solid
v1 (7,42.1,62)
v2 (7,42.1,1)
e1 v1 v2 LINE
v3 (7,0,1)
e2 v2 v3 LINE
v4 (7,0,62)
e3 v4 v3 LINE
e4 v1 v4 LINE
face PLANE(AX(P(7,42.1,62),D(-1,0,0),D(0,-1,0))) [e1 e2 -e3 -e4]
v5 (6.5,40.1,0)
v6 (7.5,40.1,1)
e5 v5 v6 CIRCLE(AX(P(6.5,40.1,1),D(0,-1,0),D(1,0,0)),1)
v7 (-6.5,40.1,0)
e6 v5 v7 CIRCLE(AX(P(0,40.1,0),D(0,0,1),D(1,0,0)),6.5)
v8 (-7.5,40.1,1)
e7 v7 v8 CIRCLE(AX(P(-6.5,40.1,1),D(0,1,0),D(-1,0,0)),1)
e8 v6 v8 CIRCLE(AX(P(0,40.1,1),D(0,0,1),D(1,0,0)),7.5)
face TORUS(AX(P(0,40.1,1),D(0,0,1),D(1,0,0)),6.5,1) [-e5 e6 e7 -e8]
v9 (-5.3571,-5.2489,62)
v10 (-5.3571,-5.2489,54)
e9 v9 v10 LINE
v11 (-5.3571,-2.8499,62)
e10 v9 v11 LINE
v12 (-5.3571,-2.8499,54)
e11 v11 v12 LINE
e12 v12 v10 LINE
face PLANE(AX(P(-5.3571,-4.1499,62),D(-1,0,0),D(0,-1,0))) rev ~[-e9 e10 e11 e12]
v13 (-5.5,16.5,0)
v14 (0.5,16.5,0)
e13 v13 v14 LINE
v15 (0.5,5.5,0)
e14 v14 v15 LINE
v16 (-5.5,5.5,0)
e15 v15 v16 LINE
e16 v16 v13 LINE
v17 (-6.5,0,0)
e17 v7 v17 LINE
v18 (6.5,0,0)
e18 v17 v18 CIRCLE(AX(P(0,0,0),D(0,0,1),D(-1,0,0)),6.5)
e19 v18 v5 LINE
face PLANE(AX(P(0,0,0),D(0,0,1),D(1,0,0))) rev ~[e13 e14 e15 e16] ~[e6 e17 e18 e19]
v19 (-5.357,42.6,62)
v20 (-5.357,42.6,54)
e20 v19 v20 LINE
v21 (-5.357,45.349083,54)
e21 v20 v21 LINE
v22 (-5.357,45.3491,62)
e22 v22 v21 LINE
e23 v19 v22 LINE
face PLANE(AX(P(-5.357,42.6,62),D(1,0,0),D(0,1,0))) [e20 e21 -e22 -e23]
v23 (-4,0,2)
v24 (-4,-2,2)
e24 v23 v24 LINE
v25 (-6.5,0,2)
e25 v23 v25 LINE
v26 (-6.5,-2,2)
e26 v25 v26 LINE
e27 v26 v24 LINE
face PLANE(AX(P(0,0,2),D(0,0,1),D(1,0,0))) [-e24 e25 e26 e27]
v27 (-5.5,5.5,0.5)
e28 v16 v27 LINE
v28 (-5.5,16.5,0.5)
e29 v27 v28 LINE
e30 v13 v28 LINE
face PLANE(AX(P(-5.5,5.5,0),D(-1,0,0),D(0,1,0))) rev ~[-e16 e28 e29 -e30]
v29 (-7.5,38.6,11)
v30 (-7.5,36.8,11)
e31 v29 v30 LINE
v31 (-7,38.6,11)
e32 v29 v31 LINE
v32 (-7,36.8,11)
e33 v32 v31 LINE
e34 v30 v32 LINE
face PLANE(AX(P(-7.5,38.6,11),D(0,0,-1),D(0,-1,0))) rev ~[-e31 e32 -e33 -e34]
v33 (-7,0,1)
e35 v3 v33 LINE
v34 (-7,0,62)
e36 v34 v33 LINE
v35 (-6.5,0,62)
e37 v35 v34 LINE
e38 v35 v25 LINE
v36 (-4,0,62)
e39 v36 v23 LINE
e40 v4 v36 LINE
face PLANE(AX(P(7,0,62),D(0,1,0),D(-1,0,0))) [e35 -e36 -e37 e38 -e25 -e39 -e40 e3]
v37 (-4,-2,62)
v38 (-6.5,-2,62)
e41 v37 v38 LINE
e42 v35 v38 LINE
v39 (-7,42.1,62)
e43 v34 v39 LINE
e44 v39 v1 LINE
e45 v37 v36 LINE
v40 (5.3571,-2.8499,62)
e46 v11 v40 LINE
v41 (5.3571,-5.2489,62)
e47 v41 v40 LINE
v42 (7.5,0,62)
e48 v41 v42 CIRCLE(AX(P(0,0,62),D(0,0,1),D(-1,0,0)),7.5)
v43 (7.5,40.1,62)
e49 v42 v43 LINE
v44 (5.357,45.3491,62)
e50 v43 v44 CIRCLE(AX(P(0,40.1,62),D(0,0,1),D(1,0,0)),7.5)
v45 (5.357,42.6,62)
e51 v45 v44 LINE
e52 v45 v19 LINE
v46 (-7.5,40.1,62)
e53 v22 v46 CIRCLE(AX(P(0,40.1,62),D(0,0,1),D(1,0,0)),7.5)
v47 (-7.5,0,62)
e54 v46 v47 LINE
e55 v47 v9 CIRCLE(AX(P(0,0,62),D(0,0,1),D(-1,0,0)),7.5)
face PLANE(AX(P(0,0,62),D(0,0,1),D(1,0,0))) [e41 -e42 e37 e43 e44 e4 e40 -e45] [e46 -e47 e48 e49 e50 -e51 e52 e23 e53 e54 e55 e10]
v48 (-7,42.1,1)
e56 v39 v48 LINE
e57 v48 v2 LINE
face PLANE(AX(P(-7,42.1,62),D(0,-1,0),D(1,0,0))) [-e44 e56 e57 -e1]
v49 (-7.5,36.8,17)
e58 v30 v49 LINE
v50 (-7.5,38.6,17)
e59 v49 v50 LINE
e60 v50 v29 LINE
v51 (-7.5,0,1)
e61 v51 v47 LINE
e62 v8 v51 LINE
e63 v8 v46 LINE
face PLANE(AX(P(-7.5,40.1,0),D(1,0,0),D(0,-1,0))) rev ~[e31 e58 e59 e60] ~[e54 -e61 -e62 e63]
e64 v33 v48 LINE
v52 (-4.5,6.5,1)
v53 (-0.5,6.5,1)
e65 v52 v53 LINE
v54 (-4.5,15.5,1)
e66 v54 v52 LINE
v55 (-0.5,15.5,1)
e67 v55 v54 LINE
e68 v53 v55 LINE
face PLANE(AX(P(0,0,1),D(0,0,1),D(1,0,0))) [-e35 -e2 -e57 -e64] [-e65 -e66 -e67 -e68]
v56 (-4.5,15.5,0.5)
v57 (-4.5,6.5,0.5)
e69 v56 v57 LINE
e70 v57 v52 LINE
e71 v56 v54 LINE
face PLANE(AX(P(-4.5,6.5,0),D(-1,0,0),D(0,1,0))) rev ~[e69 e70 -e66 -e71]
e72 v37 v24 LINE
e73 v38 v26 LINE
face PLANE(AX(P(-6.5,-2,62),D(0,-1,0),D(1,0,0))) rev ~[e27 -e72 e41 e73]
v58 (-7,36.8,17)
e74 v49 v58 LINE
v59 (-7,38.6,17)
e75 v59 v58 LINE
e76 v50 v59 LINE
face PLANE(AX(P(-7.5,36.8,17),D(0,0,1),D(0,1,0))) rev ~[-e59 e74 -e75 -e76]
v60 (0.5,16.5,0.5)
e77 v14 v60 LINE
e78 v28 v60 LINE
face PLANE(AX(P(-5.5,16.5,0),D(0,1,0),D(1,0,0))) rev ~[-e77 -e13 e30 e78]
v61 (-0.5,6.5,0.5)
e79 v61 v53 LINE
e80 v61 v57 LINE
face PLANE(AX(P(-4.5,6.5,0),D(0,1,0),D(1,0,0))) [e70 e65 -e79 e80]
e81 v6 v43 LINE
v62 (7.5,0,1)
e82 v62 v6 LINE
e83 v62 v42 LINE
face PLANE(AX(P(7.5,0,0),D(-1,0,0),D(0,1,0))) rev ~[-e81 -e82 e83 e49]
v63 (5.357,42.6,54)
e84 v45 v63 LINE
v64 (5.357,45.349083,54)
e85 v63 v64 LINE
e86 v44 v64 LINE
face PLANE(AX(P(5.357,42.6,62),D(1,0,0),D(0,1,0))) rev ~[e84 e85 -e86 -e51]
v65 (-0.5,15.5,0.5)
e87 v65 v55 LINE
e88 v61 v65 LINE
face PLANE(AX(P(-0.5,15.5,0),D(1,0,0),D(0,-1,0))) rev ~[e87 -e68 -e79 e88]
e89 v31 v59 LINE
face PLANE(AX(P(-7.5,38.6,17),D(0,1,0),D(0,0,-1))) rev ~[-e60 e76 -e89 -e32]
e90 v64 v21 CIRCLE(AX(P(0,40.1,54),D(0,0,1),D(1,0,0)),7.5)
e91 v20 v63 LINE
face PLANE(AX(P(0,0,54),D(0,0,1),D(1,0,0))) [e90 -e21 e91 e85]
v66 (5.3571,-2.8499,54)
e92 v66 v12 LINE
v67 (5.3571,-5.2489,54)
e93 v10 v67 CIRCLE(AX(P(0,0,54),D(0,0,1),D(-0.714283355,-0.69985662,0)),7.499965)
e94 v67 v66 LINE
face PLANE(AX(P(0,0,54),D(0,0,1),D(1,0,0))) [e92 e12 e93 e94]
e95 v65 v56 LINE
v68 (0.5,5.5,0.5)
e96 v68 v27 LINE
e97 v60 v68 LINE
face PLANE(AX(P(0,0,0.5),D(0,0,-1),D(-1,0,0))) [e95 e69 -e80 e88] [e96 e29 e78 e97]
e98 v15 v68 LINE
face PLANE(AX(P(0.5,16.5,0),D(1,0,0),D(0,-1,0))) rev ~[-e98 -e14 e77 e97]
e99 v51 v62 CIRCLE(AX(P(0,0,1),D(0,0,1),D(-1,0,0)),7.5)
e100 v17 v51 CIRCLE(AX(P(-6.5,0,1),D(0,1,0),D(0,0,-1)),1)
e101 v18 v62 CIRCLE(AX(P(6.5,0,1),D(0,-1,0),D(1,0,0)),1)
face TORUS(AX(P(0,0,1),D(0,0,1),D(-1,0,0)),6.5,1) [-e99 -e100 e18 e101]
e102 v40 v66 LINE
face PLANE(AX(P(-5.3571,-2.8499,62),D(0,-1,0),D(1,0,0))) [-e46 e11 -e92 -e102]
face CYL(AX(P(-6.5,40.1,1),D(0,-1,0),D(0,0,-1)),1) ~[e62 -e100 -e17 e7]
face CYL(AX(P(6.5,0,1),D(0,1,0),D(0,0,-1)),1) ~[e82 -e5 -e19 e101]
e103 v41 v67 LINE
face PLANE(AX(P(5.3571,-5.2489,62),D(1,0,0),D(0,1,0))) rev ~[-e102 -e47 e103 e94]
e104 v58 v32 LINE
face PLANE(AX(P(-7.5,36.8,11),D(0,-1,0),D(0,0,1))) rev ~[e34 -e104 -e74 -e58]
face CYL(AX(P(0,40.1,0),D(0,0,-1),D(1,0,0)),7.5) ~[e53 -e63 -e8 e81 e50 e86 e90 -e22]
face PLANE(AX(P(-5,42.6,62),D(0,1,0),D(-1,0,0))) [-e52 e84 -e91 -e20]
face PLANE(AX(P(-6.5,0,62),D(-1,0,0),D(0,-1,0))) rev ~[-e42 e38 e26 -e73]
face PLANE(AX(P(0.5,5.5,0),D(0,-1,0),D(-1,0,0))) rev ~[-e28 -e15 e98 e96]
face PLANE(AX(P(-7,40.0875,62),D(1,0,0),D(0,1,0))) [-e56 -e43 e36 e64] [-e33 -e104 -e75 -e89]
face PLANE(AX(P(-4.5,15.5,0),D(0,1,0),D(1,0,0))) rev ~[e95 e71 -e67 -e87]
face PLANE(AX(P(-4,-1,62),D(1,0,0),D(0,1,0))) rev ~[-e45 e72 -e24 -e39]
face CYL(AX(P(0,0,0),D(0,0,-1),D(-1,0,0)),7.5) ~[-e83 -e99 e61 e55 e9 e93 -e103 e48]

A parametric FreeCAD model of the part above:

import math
import FreeCAD as App
import Part
import Sketcher


def edges_at(feature, points):
    """Names of the edges that pass closest to the given points."""
    edges = feature.Shape.Edges
    near = lambda p: min(range(len(edges)), key=lambda i: edges[i].distToShape(Part.Vertex(*p))[0])
    return sorted({f"Edge{near(p) + 1}" for p in points})


def add_polygon(sketch, points):
    """Adds a closed chain of lines whose ends are joined by coincident constraints."""
    first, n = sketch.GeometryCount, len(points)
    for a, b in zip(points, points[1:] + points[:1]):
        sketch.addGeometry(Part.LineSegment(App.Vector(*a, 0), App.Vector(*b, 0)), False)
    for i in range(n):
        sketch.addConstraint(Sketcher.Constraint("Coincident", first + i, 2, first + (i + 1) % n, 1))

doc = App.newDocument("Part")
params = doc.addObject("Spreadsheet::Sheet", "Params")
for row, (alias, value) in enumerate([
    ("sketch1_radius", "7.5 mm"),
    ("sketch1_height", "40.1 mm"),
    ("pad1_length", "62 mm"),
    ("sketch2_width", "14 mm"),
    ("sketch2_height", "42.1 mm"),
    ("pocket1_length", "61 mm"),
    ("sketch3_radius", "7.5 mm"),
    ("pocket2_length", "8 mm"),
    ("fillet_radius", "1 mm"),
    ("sketch4_height", "2 mm"),
    ("sketch4_width", "2.5 mm"),
    ("pocket3_length", "60 mm"),
    ("sketch5_height", "9 mm"),
    ("sketch5_width", "4 mm"),
    ("sketch6_height", "6 mm"),
    ("sketch6_width", "1.8 mm"),
    ("pocket5_length", "3 mm"),
    ("sketch7_width", "6 mm"),
    ("sketch7_height", "11 mm"),
    ("pocket6_length", "0.5 mm"),
], start=1):
    params.set(f"A{row}", alias)
    params.set(f"B{row}", "=" + value)
    params.setAlias(f"B{row}", alias)

body = doc.addObject("PartDesign::Body", "Body")

# Sketch on XY plane
sketch1 = body.newObject("Sketcher::SketchObject", "Sketch")
sketch1.AttachmentSupport = (doc.getObject("XY_Plane"), [""])
sketch1.MapMode = "FlatFace"
sketch1.addGeometry([
    Part.ArcOfCircle(Part.Circle(App.Vector(0, 0, 0), App.Vector(0, 0, 1), 7.5), math.radians(180), math.radians(360)),
    Part.LineSegment(App.Vector(7.5, 0, 0), App.Vector(7.5, 40.1, 0)),
    Part.ArcOfCircle(Part.Circle(App.Vector(0, 40.1, 0), App.Vector(0, 0, 1), 7.5), math.radians(0), math.radians(180)),
    Part.LineSegment(App.Vector(-7.5, 40.1, 0), App.Vector(-7.5, 0, 0)),
], False)
sketch1.addConstraint([
    Sketcher.Constraint("Tangent", 0, 2, 1, 1),
    Sketcher.Constraint("Tangent", 1, 2, 2, 1),
    Sketcher.Constraint("Tangent", 2, 2, 3, 1),
    Sketcher.Constraint("Tangent", 3, 2, 0, 1),
    Sketcher.Constraint("Vertical", 1),
    Sketcher.Constraint("Vertical", 3),
    Sketcher.Constraint("Coincident", 0, 3, -1, 1),
    Sketcher.Constraint("Radius", 0, 7.5),
    Sketcher.Constraint("DistanceY", 1, 1, 1, 2, 40.1),
])
sketch1.setExpression("Constraints[7]", "Params.sketch1_radius")
sketch1.setExpression("Constraints[8]", "Params.sketch1_height")
pad1 = body.newObject("PartDesign::Pad", "Pad")
pad1.Profile = sketch1
pad1.setExpression("Length", "Params.pad1_length")

# Sketch on XY plane
sketch2 = body.newObject("Sketcher::SketchObject", "Sketch001")
sketch2.AttachmentSupport = (doc.getObject("XY_Plane"), [""])
sketch2.MapMode = "FlatFace"
sketch2.AttachmentOffset = App.Placement(App.Vector(0, 0, 62), App.Rotation())
add_polygon(sketch2, [(-7, 0), (7, 0), (7, 42.1), (-7, 42.1)])  # lines 0-3
sketch2.addConstraint([
    Sketcher.Constraint("Horizontal", 0),
    Sketcher.Constraint("Vertical", 1),
    Sketcher.Constraint("Horizontal", 2),
    Sketcher.Constraint("Vertical", 3),
    Sketcher.Constraint("Symmetric", 0, 2, 3, 2, -1, 1),
    Sketcher.Constraint("DistanceX", 0, 1, 0, 2, 14.0),
    Sketcher.Constraint("DistanceY", 1, 1, 1, 2, 42.1),
])
sketch2.setExpression("Constraints[9]", "Params.sketch2_width")
sketch2.setExpression("Constraints[10]", "Params.sketch2_height")
pocket1 = body.newObject("PartDesign::Pocket", "Pocket")
pocket1.Profile = sketch2
pocket1.setExpression("Length", "Params.pocket1_length")

# Sketch on XY plane
sketch3 = body.newObject("Sketcher::SketchObject", "Sketch002")
sketch3.AttachmentSupport = (doc.getObject("XY_Plane"), [""])
sketch3.MapMode = "FlatFace"
sketch3.AttachmentOffset = App.Placement(App.Vector(0, 0, 62), App.Rotation())
sketch3.addGeometry([
    Part.LineSegment(App.Vector(5.3571, -2.8499, 0), App.Vector(-5.3571, -2.8499, 0)),  # 0
    Part.LineSegment(App.Vector(-5.3571, -2.8499, 0), App.Vector(-5.3571, -5.2489, 0)),  # 1
    Part.ArcOfCircle(Part.Circle(App.Vector(0, 0, 0), App.Vector(0, 0, 1), 7.499965), math.radians(-135.584498), math.radians(-44.415502)),  # 2
    Part.LineSegment(App.Vector(5.3571, -5.2489, 0), App.Vector(5.3571, -2.8499, 0)),  # 3
    Part.LineSegment(App.Vector(-5.357, 42.6, 0), App.Vector(5.357, 42.6, 0)),  # 4
    Part.LineSegment(App.Vector(5.357, 42.6, 0), App.Vector(5.357, 45.3491, 0)),  # 5
    Part.ArcOfCircle(Part.Circle(App.Vector(0, 40.1, 0), App.Vector(0, 0, 1), 7.5), math.radians(44.417128), math.radians(135.582872)),  # 6
    Part.LineSegment(App.Vector(-5.357, 45.3491, 0), App.Vector(-5.357, 42.6, 0)),  # 7
], False)
sketch3.addConstraint([
    Sketcher.Constraint("Coincident", 0, 2, 1, 1),
    Sketcher.Constraint("Coincident", 1, 2, 2, 1),
    Sketcher.Constraint("Coincident", 2, 2, 3, 1),
    Sketcher.Constraint("Coincident", 3, 2, 0, 1),
    Sketcher.Constraint("Coincident", 4, 2, 5, 1),
    Sketcher.Constraint("Coincident", 5, 2, 6, 1),
    Sketcher.Constraint("Coincident", 6, 2, 7, 1),
    Sketcher.Constraint("Coincident", 7, 2, 4, 1),
    Sketcher.Constraint("Horizontal", 0),
    Sketcher.Constraint("Vertical", 1),
    Sketcher.Constraint("Vertical", 3),
    Sketcher.Constraint("Horizontal", 4),
    Sketcher.Constraint("Vertical", 5),
    Sketcher.Constraint("Vertical", 7),
    Sketcher.Constraint("Coincident", 2, 3, -1, 1),
    Sketcher.Constraint("Equal", 2, 6),
    Sketcher.Constraint("Symmetric", 5, 2, 6, 2, -2),
    Sketcher.Constraint("Horizontal", 1, 2, 2, 2),
    Sketcher.Constraint("Vertical", 3, 2, 4, 2),
    Sketcher.Constraint("Radius", 2, 7.5),
    Sketcher.Constraint("DistanceX", 0, 2, -1, 1, 5.357),
    Sketcher.Constraint("DistanceY", -1, 1, 6, 3, 40.1),
    Sketcher.Constraint("DistanceY", -1, 1, 4, 2, 42.6),
    Sketcher.Constraint("DistanceY", 1, 2, 1, 1, 2.399),
])
sketch3.setExpression("Constraints[19]", "Params.sketch3_radius")
pocket2 = body.newObject("PartDesign::Pocket", "Pocket001")
pocket2.Profile = sketch3
pocket2.setExpression("Length", "Params.pocket2_length")
doc.recompute()

fillet = body.newObject("PartDesign::Fillet", "Fillet")
fillet.Base = (pocket2, edges_at(pocket2, [
    (0, 47.6, 0),
    (-7.5, 20.05, 0),
    (0, -7.5, 0),
    (7.5, 20.05, 0),
]))
fillet.setExpression("Radius", "Params.fillet_radius")

# Sketch on XY plane
sketch4 = body.newObject("Sketcher::SketchObject", "Sketch003")
sketch4.AttachmentSupport = (doc.getObject("XY_Plane"), [""])
sketch4.MapMode = "FlatFace"
sketch4.AttachmentOffset = App.Placement(App.Vector(0, 0, 62), App.Rotation())
add_polygon(sketch4, [(-6.5, -2), (-4, -2), (-4, 0), (-6.5, 0)])  # lines 0-3
sketch4.addConstraint([
    Sketcher.Constraint("Horizontal", 0),
    Sketcher.Constraint("Vertical", 1),
    Sketcher.Constraint("Horizontal", 2),
    Sketcher.Constraint("Vertical", 3),
    Sketcher.Constraint("PointOnObject", 1, 2, -1),
    Sketcher.Constraint("DistanceY", 1, 1, 1, 2, 2.0),
    Sketcher.Constraint("DistanceX", 0, 1, 0, 2, 2.5),
    Sketcher.Constraint("DistanceX", 0, 2, -1, 1, 4.0),
])
sketch4.setExpression("Constraints[9]", "Params.sketch4_height")
sketch4.setExpression("Constraints[10]", "Params.sketch4_width")
pocket3 = body.newObject("PartDesign::Pocket", "Pocket002")
pocket3.Profile = sketch4
pocket3.setExpression("Length", "Params.pocket3_length")

# Sketch on XY plane
sketch5 = body.newObject("Sketcher::SketchObject", "Sketch004")
sketch5.AttachmentSupport = (doc.getObject("XY_Plane"), [""])
sketch5.MapMode = "FlatFace"
add_polygon(sketch5, [(-0.5, 15.5), (-0.5, 6.5), (-4.5, 6.5), (-4.5, 15.5)])  # lines 0-3
sketch5.addConstraint([
    Sketcher.Constraint("Vertical", 0),
    Sketcher.Constraint("Horizontal", 1),
    Sketcher.Constraint("Vertical", 2),
    Sketcher.Constraint("Horizontal", 3),
    Sketcher.Constraint("DistanceY", 0, 2, 0, 1, 9.0),
    Sketcher.Constraint("DistanceX", 1, 2, 1, 1, 4.0),
    Sketcher.Constraint("DistanceX", 0, 2, -1, 1, 0.5),
    Sketcher.Constraint("DistanceY", -1, 1, 0, 2, 6.5),
])
sketch5.setExpression("Constraints[8]", "Params.sketch5_height")
sketch5.setExpression("Constraints[9]", "Params.sketch5_width")
pocket4 = body.newObject("PartDesign::Pocket", "Pocket003")
pocket4.Profile = sketch5
pocket4.Type = "ThroughAll"
pocket4.Reversed = True

# Sketch on YZ plane
sketch6 = body.newObject("Sketcher::SketchObject", "Sketch005")
sketch6.AttachmentSupport = (doc.getObject("YZ_Plane"), [""])
sketch6.MapMode = "FlatFace"
sketch6.AttachmentOffset = App.Placement(App.Vector(0, 0, -7.5), App.Rotation())
add_polygon(sketch6, [(36.8, 11), (36.8, 17), (38.6, 17), (38.6, 11)])  # lines 0-3
sketch6.addConstraint([
    Sketcher.Constraint("Vertical", 0),
    Sketcher.Constraint("Horizontal", 1),
    Sketcher.Constraint("Vertical", 2),
    Sketcher.Constraint("Horizontal", 3),
    Sketcher.Constraint("DistanceY", 0, 1, 0, 2, 6.0),
    Sketcher.Constraint("DistanceX", 1, 1, 1, 2, 1.8),
    Sketcher.Constraint("DistanceY", -1, 1, 0, 2, 17.0),
    Sketcher.Constraint("DistanceX", -1, 1, 0, 2, 36.8),
])
sketch6.setExpression("Constraints[8]", "Params.sketch6_height")
sketch6.setExpression("Constraints[9]", "Params.sketch6_width")
pocket5 = body.newObject("PartDesign::Pocket", "Pocket004")
pocket5.Profile = sketch6
pocket5.setExpression("Length", "Params.pocket5_length")
pocket5.Reversed = True

# Sketch on XY plane
sketch7 = body.newObject("Sketcher::SketchObject", "Sketch006")
sketch7.AttachmentSupport = (doc.getObject("XY_Plane"), [""])
sketch7.MapMode = "FlatFace"
add_polygon(sketch7, [(-5.5, 5.5), (-5.5, 16.5), (0.5, 16.5), (0.5, 5.5)])  # lines 0-3
sketch7.addConstraint([
    Sketcher.Constraint("Vertical", 0),
    Sketcher.Constraint("Horizontal", 1),
    Sketcher.Constraint("Vertical", 2),
    Sketcher.Constraint("Horizontal", 3),
    Sketcher.Constraint("DistanceX", 1, 1, 1, 2, 6.0),
    Sketcher.Constraint("DistanceY", 0, 1, 0, 2, 11.0),
    Sketcher.Constraint("DistanceX", 0, 2, -1, 1, 5.5),
    Sketcher.Constraint("DistanceY", -1, 1, 0, 2, 16.5),
])
sketch7.setExpression("Constraints[8]", "Params.sketch7_width")
sketch7.setExpression("Constraints[9]", "Params.sketch7_height")
pocket6 = body.newObject("PartDesign::Pocket", "Pocket005")
pocket6.Profile = sketch7
pocket6.setExpression("Length", "Params.pocket6_length")
pocket6.Reversed = True

doc.recompute()
